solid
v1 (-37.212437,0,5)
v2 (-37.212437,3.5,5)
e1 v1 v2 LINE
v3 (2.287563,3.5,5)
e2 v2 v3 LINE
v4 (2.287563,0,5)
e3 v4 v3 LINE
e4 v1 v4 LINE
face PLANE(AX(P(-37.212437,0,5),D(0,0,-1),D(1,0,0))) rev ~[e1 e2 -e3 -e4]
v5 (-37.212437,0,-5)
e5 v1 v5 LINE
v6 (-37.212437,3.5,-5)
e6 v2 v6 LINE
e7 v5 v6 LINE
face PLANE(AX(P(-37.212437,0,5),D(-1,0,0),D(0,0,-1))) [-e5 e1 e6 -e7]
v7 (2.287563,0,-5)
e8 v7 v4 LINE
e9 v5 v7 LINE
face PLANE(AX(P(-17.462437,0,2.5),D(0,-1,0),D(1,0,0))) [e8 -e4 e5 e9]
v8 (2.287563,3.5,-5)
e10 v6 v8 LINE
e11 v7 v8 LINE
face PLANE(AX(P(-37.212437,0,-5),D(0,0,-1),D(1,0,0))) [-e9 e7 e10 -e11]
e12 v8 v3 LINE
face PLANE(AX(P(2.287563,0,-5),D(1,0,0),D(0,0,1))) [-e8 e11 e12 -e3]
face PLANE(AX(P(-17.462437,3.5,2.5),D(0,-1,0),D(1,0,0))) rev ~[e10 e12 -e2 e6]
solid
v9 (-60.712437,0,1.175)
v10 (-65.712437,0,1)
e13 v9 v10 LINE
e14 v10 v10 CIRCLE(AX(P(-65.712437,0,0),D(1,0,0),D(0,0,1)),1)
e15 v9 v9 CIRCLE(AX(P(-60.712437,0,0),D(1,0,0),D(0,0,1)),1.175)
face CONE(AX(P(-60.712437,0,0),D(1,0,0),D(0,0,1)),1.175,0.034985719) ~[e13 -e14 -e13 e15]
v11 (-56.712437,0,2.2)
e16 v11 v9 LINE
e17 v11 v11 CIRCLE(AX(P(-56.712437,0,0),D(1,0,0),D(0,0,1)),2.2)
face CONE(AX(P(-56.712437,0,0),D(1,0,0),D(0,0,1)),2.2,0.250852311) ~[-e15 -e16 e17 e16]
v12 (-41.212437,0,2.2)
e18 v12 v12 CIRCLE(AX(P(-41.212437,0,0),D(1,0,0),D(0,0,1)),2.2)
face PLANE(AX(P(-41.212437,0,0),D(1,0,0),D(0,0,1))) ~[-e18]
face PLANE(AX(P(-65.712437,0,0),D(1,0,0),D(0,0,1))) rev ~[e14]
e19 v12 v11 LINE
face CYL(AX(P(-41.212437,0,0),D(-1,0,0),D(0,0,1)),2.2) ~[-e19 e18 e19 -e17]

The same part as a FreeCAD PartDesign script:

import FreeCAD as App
import Part
import Sketcher

V = App.Vector

doc = App.newDocument("Part")
params = doc.addObject("Spreadsheet::Sheet", "Params")
for row, (alias, value) in enumerate([
    ("sketch1_height", "1 mm"),
    ("sketch1_width", "24.5 mm"),
    ("sketch1_width2", "15.5 mm"),
    ("sketch1_height2", "2.2 mm"),
    ("revolution_angle", "360 deg"),
    ("sketch2_height", "10 mm"),
    ("sketch2_width", "39.5 mm"),
    ("pad1_length", "3.5 mm"),
], start=1):
    params.set(f"A{row}", alias)
    params.set(f"B{row}", "=" + value)
    params.setAlias(f"B{row}", alias)

body = doc.addObject("PartDesign::Body", "Body")

sketch1 = body.newObject("Sketcher::SketchObject", "Sketch")
sketch1.AttachmentSupport = (doc.getObject("XZ_Plane"), [""])
sketch1.MapMode = "FlatFace"
sketch1.addGeometry([
    Part.LineSegment(V(-65.712437, 1, 0), V(-65.712437, 0, 0)),
    Part.LineSegment(V(-65.712437, 0, 0), V(-41.212437, 0, 0)),
    Part.LineSegment(V(-41.212437, 0, 0), V(-41.212437, 2.2, 0)),
    Part.LineSegment(V(-41.212437, 2.2, 0), V(-56.712437, 2.2, 0)),
    Part.LineSegment(V(-56.712437, 2.2, 0), V(-60.712437, 1.175, 0)),
    Part.LineSegment(V(-60.712437, 1.175, 0), V(-65.712437, 1, 0)),
], False)
sketch1.addConstraint([
    Sketcher.Constraint("Coincident", 0, 2, 1, 1),
    Sketcher.Constraint("Coincident", 1, 2, 2, 1),
    Sketcher.Constraint("Coincident", 2, 2, 3, 1),
    Sketcher.Constraint("Coincident", 3, 2, 4, 1),
    Sketcher.Constraint("Coincident", 4, 2, 5, 1),
    Sketcher.Constraint("Coincident", 5, 2, 0, 1),
    Sketcher.Constraint("Vertical", 0),
    Sketcher.Constraint("Horizontal", 1),
    Sketcher.Constraint("Vertical", 2),
    Sketcher.Constraint("Horizontal", 3),
    Sketcher.Constraint("PointOnObject", 0, 2, -1),
    Sketcher.Constraint("DistanceY", 0, 2, 0, 1, 1.0),
    Sketcher.Constraint("DistanceX", 1, 1, 1, 2, 24.5),
    Sketcher.Constraint("DistanceX", 3, 2, 3, 1, 15.5),
    Sketcher.Constraint("DistanceY", 2, 1, 2, 2, 2.2),
    Sketcher.Constraint("DistanceX", 4, 2, 3, 2, 4.0),
    Sketcher.Constraint("DistanceY", -1, 1, 4, 2, 1.175),
    Sketcher.Constraint("DistanceX", 0, 2, -1, 1, 65.712437),
])
sketch1.setExpression("Constraints[11]", "Params.sketch1_height")
sketch1.setExpression("Constraints[12]", "Params.sketch1_width")
sketch1.setExpression("Constraints[13]", "Params.sketch1_width2")
sketch1.setExpression("Constraints[14]", "Params.sketch1_height2")
revolution = body.newObject("PartDesign::Revolution", "Revolution")
revolution.Profile = sketch1
revolution.ReferenceAxis = (sketch1, ["H_Axis"])
revolution.setExpression("Angle", "Params.revolution_angle")
body2 = doc.addObject("PartDesign::Body", "Body001")

sketch2 = body2.newObject("Sketcher::SketchObject", "Sketch001")
sketch2.AttachmentSupport = (doc.getObject("XZ_Plane001"), [""])
sketch2.MapMode = "FlatFace"
sketch2.addGeometry([
    Part.LineSegment(V(-37.212437, 5, 0), V(-37.212437, -5, 0)),
    Part.LineSegment(V(-37.212437, -5, 0), V(2.287563, -5, 0)),
    Part.LineSegment(V(2.287563, -5, 0), V(2.287563, 5, 0)),
    Part.LineSegment(V(2.287563, 5, 0), V(-37.212437, 5, 0)),
], False)
sketch2.addConstraint([
    Sketcher.Constraint("Coincident", 0, 2, 1, 1),
    Sketcher.Constraint("Coincident", 1, 2, 2, 1),
    Sketcher.Constraint("Coincident", 2, 2, 3, 1),
    Sketcher.Constraint("Coincident", 3, 2, 0, 1),
    Sketcher.Constraint("Vertical", 0),
    Sketcher.Constraint("Horizontal", 1),
    Sketcher.Constraint("Vertical", 2),
    Sketcher.Constraint("Horizontal", 3),
    Sketcher.Constraint("DistanceY", 0, 2, 0, 1, 10.0),
    Sketcher.Constraint("DistanceX", 1, 1, 1, 2, 39.5),
    Sketcher.Constraint("DistanceY", 0, 2, -1, 1, 5.0),
    Sketcher.Constraint("DistanceX", 0, 2, -1, 1, 37.212437),
])
sketch2.setExpression("Constraints[8]", "Params.sketch2_height")
sketch2.setExpression("Constraints[9]", "Params.sketch2_width")
pad1 = body2.newObject("PartDesign::Pad", "Pad")
pad1.Profile = sketch2
pad1.setExpression("Length", "Params.pad1_length")
pad1.Reversed = True

doc.recompute()
